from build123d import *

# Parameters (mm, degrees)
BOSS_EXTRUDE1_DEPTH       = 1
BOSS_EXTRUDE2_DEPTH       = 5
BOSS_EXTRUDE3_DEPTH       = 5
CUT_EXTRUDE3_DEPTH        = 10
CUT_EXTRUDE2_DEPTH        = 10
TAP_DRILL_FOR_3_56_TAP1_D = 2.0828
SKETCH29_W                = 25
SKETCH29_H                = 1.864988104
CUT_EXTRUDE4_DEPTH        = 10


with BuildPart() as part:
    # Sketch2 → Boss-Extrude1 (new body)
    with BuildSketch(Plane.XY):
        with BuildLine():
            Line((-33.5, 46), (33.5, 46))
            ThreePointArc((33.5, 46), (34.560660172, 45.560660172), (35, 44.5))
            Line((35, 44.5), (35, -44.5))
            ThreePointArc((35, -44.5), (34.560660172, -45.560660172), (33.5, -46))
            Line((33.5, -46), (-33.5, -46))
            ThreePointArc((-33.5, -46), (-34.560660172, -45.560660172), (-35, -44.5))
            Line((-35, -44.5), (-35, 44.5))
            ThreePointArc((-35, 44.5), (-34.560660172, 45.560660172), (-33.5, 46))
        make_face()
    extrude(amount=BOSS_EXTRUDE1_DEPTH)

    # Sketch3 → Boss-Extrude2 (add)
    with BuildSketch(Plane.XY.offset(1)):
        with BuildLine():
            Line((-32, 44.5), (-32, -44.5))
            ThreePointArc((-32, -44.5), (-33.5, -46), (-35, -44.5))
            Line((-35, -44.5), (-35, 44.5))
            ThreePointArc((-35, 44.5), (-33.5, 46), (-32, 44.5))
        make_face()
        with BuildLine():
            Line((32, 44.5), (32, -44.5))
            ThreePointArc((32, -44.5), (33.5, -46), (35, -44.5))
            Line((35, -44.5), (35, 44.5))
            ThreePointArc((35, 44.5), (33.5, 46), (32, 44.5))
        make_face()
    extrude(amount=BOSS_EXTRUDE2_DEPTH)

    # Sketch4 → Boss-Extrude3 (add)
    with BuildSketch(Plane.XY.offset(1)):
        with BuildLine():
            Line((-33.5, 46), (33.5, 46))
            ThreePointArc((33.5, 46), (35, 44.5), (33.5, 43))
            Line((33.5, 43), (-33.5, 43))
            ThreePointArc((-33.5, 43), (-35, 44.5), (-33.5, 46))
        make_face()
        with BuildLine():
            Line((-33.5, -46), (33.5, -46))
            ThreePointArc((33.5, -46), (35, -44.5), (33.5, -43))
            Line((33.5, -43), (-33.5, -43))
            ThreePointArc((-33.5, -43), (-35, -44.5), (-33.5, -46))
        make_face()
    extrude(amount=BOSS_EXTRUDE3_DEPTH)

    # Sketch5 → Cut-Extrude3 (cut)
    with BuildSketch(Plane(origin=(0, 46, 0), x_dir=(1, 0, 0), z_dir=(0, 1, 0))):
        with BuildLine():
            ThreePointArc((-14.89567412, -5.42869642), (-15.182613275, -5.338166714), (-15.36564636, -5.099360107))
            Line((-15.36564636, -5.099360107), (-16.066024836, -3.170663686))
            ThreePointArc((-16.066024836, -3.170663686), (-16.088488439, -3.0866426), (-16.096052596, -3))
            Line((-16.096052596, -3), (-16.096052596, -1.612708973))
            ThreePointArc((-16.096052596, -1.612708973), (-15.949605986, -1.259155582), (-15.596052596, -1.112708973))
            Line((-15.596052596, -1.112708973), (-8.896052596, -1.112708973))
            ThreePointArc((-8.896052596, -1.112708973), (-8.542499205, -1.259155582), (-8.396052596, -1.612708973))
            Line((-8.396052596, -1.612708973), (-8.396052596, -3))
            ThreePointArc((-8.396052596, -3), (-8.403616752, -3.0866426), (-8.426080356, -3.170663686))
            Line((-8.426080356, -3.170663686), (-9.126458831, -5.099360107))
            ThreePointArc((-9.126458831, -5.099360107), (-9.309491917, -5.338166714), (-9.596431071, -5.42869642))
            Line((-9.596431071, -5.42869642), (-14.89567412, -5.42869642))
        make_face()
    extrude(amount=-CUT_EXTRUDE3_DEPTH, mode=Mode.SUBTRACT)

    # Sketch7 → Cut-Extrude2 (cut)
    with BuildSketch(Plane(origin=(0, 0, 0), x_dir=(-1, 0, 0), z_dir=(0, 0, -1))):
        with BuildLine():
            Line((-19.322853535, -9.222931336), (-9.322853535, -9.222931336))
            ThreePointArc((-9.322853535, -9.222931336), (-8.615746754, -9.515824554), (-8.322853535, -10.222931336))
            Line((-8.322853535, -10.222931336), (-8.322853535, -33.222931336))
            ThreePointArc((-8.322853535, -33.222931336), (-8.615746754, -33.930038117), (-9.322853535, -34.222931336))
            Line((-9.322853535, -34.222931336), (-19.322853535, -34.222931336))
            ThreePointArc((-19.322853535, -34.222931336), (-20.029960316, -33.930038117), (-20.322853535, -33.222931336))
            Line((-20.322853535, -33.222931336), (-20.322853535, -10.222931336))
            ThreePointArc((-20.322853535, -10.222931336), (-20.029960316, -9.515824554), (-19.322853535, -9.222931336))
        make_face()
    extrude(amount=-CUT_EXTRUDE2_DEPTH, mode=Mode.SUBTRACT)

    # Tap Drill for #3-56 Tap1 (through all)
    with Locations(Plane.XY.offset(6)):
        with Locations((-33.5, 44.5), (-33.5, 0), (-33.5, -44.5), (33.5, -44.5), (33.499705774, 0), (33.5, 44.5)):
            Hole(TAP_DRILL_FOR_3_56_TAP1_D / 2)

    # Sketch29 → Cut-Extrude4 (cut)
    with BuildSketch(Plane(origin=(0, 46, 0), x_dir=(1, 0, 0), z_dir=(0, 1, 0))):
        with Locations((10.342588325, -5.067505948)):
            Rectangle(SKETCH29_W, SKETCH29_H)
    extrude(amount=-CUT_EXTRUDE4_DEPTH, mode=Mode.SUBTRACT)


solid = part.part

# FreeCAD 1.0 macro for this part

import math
import FreeCAD as App
import Part
import Sketcher
Q = App.Units.Quantity


def add_polygon(sketch, points):
    """Adds a closed chain of lines whose ends are joined by coincident constraints."""
    first, n = sketch.GeometryCount, len(points)
    for a, b in zip(points, points[1:] + points[:1]):
        sketch.addGeometry(Part.LineSegment(App.Vector(*a, 0), App.Vector(*b, 0)), False)
    for i in range(n):
        sketch.addConstraint(Sketcher.Constraint("Coincident", first + i, 2, first + (i + 1) % n, 1))

doc = App.newDocument("Part")
params = doc.addObject("Spreadsheet::Sheet", "Params")
for row, (alias, value) in enumerate([
    ("sketch1_radius", "1.5 mm"),
    ("sketch1_width", "67 mm"),
    ("sketch1_height", "89 mm"),
    ("pad1_length", "1 mm"),
    ("sketch2_radius", "1.5 mm"),
    ("sketch2_height", "89 mm"),
    ("pad2_length", "5 mm"),
    ("sketch3_radius", "1.5 mm"),
    ("sketch3_width", "67 mm"),
    ("pad3_length", "5 mm"),
    ("sketch4_radius", "0.5 mm"),
    ("sketch4_width", "6.7 mm"),
    ("pocket1_length", "10 mm"),
    ("sketch5_radius", "1 mm"),
    ("sketch5_width", "10 mm"),
    ("sketch5_height", "23 mm"),
    ("pocket2_length", "10 mm"),
    ("hole_diameter", "2.0828 mm"),
    ("sketch7_width", "25 mm"),
    ("pocket3_length", "10 mm"),
], start=1):
    params.set(f"A{row}", alias)
    params.set(f"B{row}", "=" + value)
    params.setAlias(f"B{row}", alias)

body = doc.addObject("PartDesign::Body", "Body")

# Sketch on XY plane
sketch1 = doc.addObject("Sketcher::SketchObject", "Sketch")
body.addObject(sketch1)
sketch1.AttachmentSupport = (doc.XY_Plane, [""])
sketch1.MapMode = "FlatFace"
sketch1.addGeometry([
    Part.LineSegment(App.Vector(33.5, 46, 0), App.Vector(-33.5, 46, 0)),  # 0
    Part.ArcOfCircle(Part.Circle(App.Vector(-33.5, 44.5, 0), App.Vector(0, 0, 1), 1.5), math.radians(90), math.radians(180)),  # 1
    Part.LineSegment(App.Vector(-35, 44.5, 0), App.Vector(-35, -44.5, 0)),  # 2
    Part.ArcOfCircle(Part.Circle(App.Vector(-33.5, -44.5, 0), App.Vector(0, 0, 1), 1.5), math.radians(180), math.radians(270)),  # 3
    Part.LineSegment(App.Vector(-33.5, -46, 0), App.Vector(33.5, -46, 0)),  # 4
    Part.ArcOfCircle(Part.Circle(App.Vector(33.5, -44.5, 0), App.Vector(0, 0, 1), 1.5), math.radians(-90), math.radians(0)),  # 5
    Part.LineSegment(App.Vector(35, -44.5, 0), App.Vector(35, 44.5, 0)),  # 6
    Part.ArcOfCircle(Part.Circle(App.Vector(33.5, 44.5, 0), App.Vector(0, 0, 1), 1.5), math.radians(0), math.radians(90)),  # 7
], False)
sketch1.addConstraint([
    Sketcher.Constraint("Tangent", 0, 2, 1, 1),
    Sketcher.Constraint("Tangent", 1, 2, 2, 1),
    Sketcher.Constraint("Tangent", 2, 2, 3, 1),
    Sketcher.Constraint("Tangent", 3, 2, 4, 1),
    Sketcher.Constraint("Tangent", 4, 2, 5, 1),
    Sketcher.Constraint("Tangent", 5, 2, 6, 1),
    Sketcher.Constraint("Tangent", 6, 2, 7, 1),
    Sketcher.Constraint("Tangent", 7, 2, 0, 1),
    Sketcher.Constraint("Horizontal", 0),
    Sketcher.Constraint("Vertical", 2),
    Sketcher.Constraint("Horizontal", 4),
    Sketcher.Constraint("Vertical", 6),
    Sketcher.Constraint("Equal", 1, 3),
    Sketcher.Constraint("Equal", 3, 5),
    Sketcher.Constraint("Equal", 5, 7),
    Sketcher.Constraint("Symmetric", 1, 3, 5, 3, -1, 1),
    Sketcher.Constraint("Radius", 1, Q("1.5 mm")),
    Sketcher.Constraint("DistanceX", 0, 2, 0, 1, Q("67 mm")),
    Sketcher.Constraint("DistanceY", 2, 2, 2, 1, Q("89 mm")),
])
sketch1.setExpression("Constraints[16]", "Params.sketch1_radius")
sketch1.setExpression("Constraints[17]", "Params.sketch1_width")
sketch1.setExpression("Constraints[18]", "Params.sketch1_height")
pad1 = doc.addObject("PartDesign::Pad", "Pad")
body.addObject(pad1)
pad1.Profile = sketch1
pad1.setExpression("Length", "Params.pad1_length")

# Sketch on XY plane
sketch2 = doc.addObject("Sketcher::SketchObject", "Sketch001")
body.addObject(sketch2)
sketch2.AttachmentSupport = (doc.XY_Plane, [""])
sketch2.MapMode = "FlatFace"
sketch2.AttachmentOffset = App.Placement(App.Vector(0, 0, 1), App.Rotation())
sketch2.addGeometry([
    Part.LineSegment(App.Vector(-32, -44.5, 0), App.Vector(-32, 44.5, 0)),  # 0
    Part.ArcOfCircle(Part.Circle(App.Vector(-33.5, 44.5, 0), App.Vector(0, 0, 1), 1.5), math.radians(0), math.radians(180)),  # 1
    Part.LineSegment(App.Vector(-35, 44.5, 0), App.Vector(-35, -44.5, 0)),  # 2
    Part.ArcOfCircle(Part.Circle(App.Vector(-33.5, -44.5, 0), App.Vector(0, 0, 1), 1.5), math.radians(180), math.radians(360)),  # 3
    Part.LineSegment(App.Vector(32, 44.5, 0), App.Vector(32, -44.5, 0)),  # 4
    Part.ArcOfCircle(Part.Circle(App.Vector(33.5, -44.5, 0), App.Vector(0, 0, 1), 1.5), math.radians(180), math.radians(360)),  # 5
    Part.LineSegment(App.Vector(35, -44.5, 0), App.Vector(35, 44.5, 0)),  # 6
    Part.ArcOfCircle(Part.Circle(App.Vector(33.5, 44.5, 0), App.Vector(0, 0, 1), 1.5), math.radians(0), math.radians(180)),  # 7
], False)
sketch2.addConstraint([
    Sketcher.Constraint("Tangent", 0, 2, 1, 1),
    Sketcher.Constraint("Tangent", 1, 2, 2, 1),
    Sketcher.Constraint("Tangent", 2, 2, 3, 1),
    Sketcher.Constraint("Tangent", 3, 2, 0, 1),
    Sketcher.Constraint("Tangent", 4, 2, 5, 1),
    Sketcher.Constraint("Tangent", 5, 2, 6, 1),
    Sketcher.Constraint("Tangent", 6, 2, 7, 1),
    Sketcher.Constraint("Tangent", 7, 2, 4, 1),
    Sketcher.Constraint("Vertical", 0),
    Sketcher.Constraint("Vertical", 2),
    Sketcher.Constraint("Vertical", 4),
    Sketcher.Constraint("Vertical", 6),
    Sketcher.Constraint("Equal", 3, 5),
    Sketcher.Constraint("Symmetric", 1, 3, 5, 3, -1, 1),
    Sketcher.Constraint("Horizontal", 3, 3, 5, 3),
    Sketcher.Constraint("Horizontal", 1, 3, 7, 3),
    Sketcher.Constraint("Radius", 1, Q("1.5 mm")),
    Sketcher.Constraint("DistanceY", 0, 1, 0, 2, Q("89 mm")),
    Sketcher.Constraint("DistanceX", 0, 2, -1, 1, Q("32 mm")),
])
sketch2.setExpression("Constraints[16]", "Params.sketch2_radius")
sketch2.setExpression("Constraints[17]", "Params.sketch2_height")
pad2 = doc.addObject("PartDesign::Pad", "Pad001")
body.addObject(pad2)
pad2.Profile = sketch2
pad2.setExpression("Length", "Params.pad2_length")

# Sketch on XY plane
sketch3 = doc.addObject("Sketcher::SketchObject", "Sketch002")
body.addObject(sketch3)
sketch3.AttachmentSupport = (doc.XY_Plane, [""])
sketch3.MapMode = "FlatFace"
sketch3.AttachmentOffset = App.Placement(App.Vector(0, 0, 1), App.Rotation())
sketch3.addGeometry([
    Part.LineSegment(App.Vector(33.5, 46, 0), App.Vector(-33.5, 46, 0)),  # 0
    Part.ArcOfCircle(Part.Circle(App.Vector(-33.5, 44.5, 0), App.Vector(0, 0, 1), 1.5), math.radians(90), math.radians(270)),  # 1
    Part.LineSegment(App.Vector(-33.5, 43, 0), App.Vector(33.5, 43, 0)),  # 2
    Part.ArcOfCircle(Part.Circle(App.Vector(33.5, 44.5, 0), App.Vector(0, 0, 1), 1.5), math.radians(-90), math.radians(90)),  # 3
    Part.LineSegment(App.Vector(-33.5, -46, 0), App.Vector(33.5, -46, 0)),  # 4
    Part.ArcOfCircle(Part.Circle(App.Vector(33.5, -44.5, 0), App.Vector(0, 0, 1), 1.5), math.radians(-90), math.radians(90)),  # 5
    Part.LineSegment(App.Vector(33.5, -43, 0), App.Vector(-33.5, -43, 0)),  # 6
    Part.ArcOfCircle(Part.Circle(App.Vector(-33.5, -44.5, 0), App.Vector(0, 0, 1), 1.5), math.radians(90), math.radians(270)),  # 7
], False)
sketch3.addConstraint([
    Sketcher.Constraint("Tangent", 0, 2, 1, 1),
    Sketcher.Constraint("Tangent", 1, 2, 2, 1),
    Sketcher.Constraint("Tangent", 2, 2, 3, 1),
    Sketcher.Constraint("Tangent", 3, 2, 0, 1),
    Sketcher.Constraint("Tangent", 4, 2, 5, 1),
    Sketcher.Constraint("Tangent", 5, 2, 6, 1),
    Sketcher.Constraint("Tangent", 6, 2, 7, 1),
    Sketcher.Constraint("Tangent", 7, 2, 4, 1),
    Sketcher.Constraint("Horizontal", 0),
    Sketcher.Constraint("Horizontal", 2),
    Sketcher.Constraint("Horizontal", 4),
    Sketcher.Constraint("Horizontal", 6),
    Sketcher.Constraint("Equal", 3, 5),
    Sketcher.Constraint("Symmetric", 1, 3, 5, 3, -1, 1),
    Sketcher.Constraint("Vertical", 3, 3, 5, 3),
    Sketcher.Constraint("Vertical", 1, 3, 7, 3),
    Sketcher.Constraint("Radius", 1, Q("1.5 mm")),
    Sketcher.Constraint("DistanceX", 0, 2, 0, 1, Q("67 mm")),
    Sketcher.Constraint("DistanceY", -1, 1, 0, 2, Q("46 mm")),
])
sketch3.setExpression("Constraints[16]", "Params.sketch3_radius")
sketch3.setExpression("Constraints[17]", "Params.sketch3_width")
pad3 = doc.addObject("PartDesign::Pad", "Pad002")
body.addObject(pad3)
pad3.Profile = sketch3
pad3.setExpression("Length", "Params.pad3_length")

# Sketch on XZ plane
sketch4 = doc.addObject("Sketcher::SketchObject", "Sketch003")
body.addObject(sketch4)
sketch4.AttachmentSupport = (doc.XZ_Plane, [""])
sketch4.MapMode = "FlatFace"
sketch4.AttachmentOffset = App.Placement(App.Vector(0, 0, -46), App.Rotation())
sketch4.addGeometry([
    Part.ArcOfCircle(Part.Circle(App.Vector(-14.9, 4.93, 0), App.Vector(0, 0, 1), 0.5), math.radians(90), math.radians(160)),  # 0
    Part.LineSegment(App.Vector(-14.9, 5.43, 0), App.Vector(-9.6, 5.43, 0)),  # 1
    Part.ArcOfCircle(Part.Circle(App.Vector(-9.6, 4.93, 0), App.Vector(0, 0, 1), 0.5), math.radians(20), math.radians(90)),  # 2
    Part.LineSegment(App.Vector(-9.13, 5.1, 0), App.Vector(-8.43, 3.17, 0)),  # 3
    Part.ArcOfCircle(Part.Circle(App.Vector(-8.9, 3, 0), App.Vector(0, 0, 1), 0.5), math.radians(0), math.radians(19.96)),  # 4
    Part.LineSegment(App.Vector(-8.4, 3, 0), App.Vector(-8.4, 1.61, 0)),  # 5
    Part.ArcOfCircle(Part.Circle(App.Vector(-8.9, 1.61, 0), App.Vector(0, 0, 1), 0.5), math.radians(-90), math.radians(0)),  # 6
    Part.LineSegment(App.Vector(-8.9, 1.11, 0), App.Vector(-15.6, 1.11, 0)),  # 7
    Part.ArcOfCircle(Part.Circle(App.Vector(-15.6, 1.61, 0), App.Vector(0, 0, 1), 0.5), math.radians(180), math.radians(270)),  # 8
    Part.LineSegment(App.Vector(-16.1, 1.61, 0), App.Vector(-16.1, 3, 0)),  # 9
    Part.ArcOfCircle(Part.Circle(App.Vector(-15.6, 3, 0), App.Vector(0, 0, 1), 0.5), math.radians(160.04), math.radians(180)),  # 10
    Part.LineSegment(App.Vector(-16.07, 3.17, 0), App.Vector(-15.37, 5.1, 0)),  # 11
], False)
sketch4.addConstraint([
    Sketcher.Constraint("Tangent", 0, 1, 1, 1),
    Sketcher.Constraint("Tangent", 1, 2, 2, 2),
    Sketcher.Constraint("Tangent", 2, 1, 3, 1),
    Sketcher.Constraint("Tangent", 3, 2, 4, 2),
    Sketcher.Constraint("Tangent", 4, 1, 5, 1),
    Sketcher.Constraint("Tangent", 5, 2, 6, 2),
    Sketcher.Constraint("Tangent", 6, 1, 7, 1),
    Sketcher.Constraint("Tangent", 7, 2, 8, 2),
    Sketcher.Constraint("Tangent", 8, 1, 9, 1),
    Sketcher.Constraint("Tangent", 9, 2, 10, 2),
    Sketcher.Constraint("Tangent", 10, 1, 11, 1),
    Sketcher.Constraint("Tangent", 11, 2, 0, 2),
    Sketcher.Constraint("Horizontal", 1),
    Sketcher.Constraint("Vertical", 5),
    Sketcher.Constraint("Horizontal", 7),
    Sketcher.Constraint("Vertical", 9),
    Sketcher.Constraint("Equal", 0, 2),
    Sketcher.Constraint("Equal", 2, 4),
    Sketcher.Constraint("Equal", 4, 6),
    Sketcher.Constraint("Equal", 6, 8),
    Sketcher.Constraint("Equal", 8, 10),
    Sketcher.Constraint("Horizontal", 4, 3, 10, 3),
    Sketcher.Constraint("Horizontal", 3, 2, 10, 1),
    Sketcher.Constraint("Radius", 0, Q("0.5 mm")),
    Sketcher.Constraint("DistanceX", 7, 2, 7, 1, Q("6.7 mm")),
    Sketcher.Constraint("DistanceY", -1, 1, 4, 3, Q("3 mm")),
    Sketcher.Constraint("DistanceY", 5, 2, 5, 1, Q("1.387291 mm")),
    Sketcher.Constraint("DistanceX", 1, 1, 1, 2, Q("5.299243 mm")),
    Sketcher.Constraint("DistanceX", 2, 3, -1, 1, Q("9.596431 mm")),
    Sketcher.Constraint("DistanceX", 2, 1, -1, 1, Q("9.126459 mm")),
])
sketch4.setExpression("Constraints[23]", "Params.sketch4_radius")
sketch4.setExpression("Constraints[24]", "Params.sketch4_width")
pocket1 = doc.addObject("PartDesign::Pocket", "Pocket")
body.addObject(pocket1)
pocket1.Profile = sketch4
pocket1.setExpression("Length", "Params.pocket1_length")
pocket1.Reversed = True

# Sketch on XY plane
sketch5 = doc.addObject("Sketcher::SketchObject", "Sketch004")
body.addObject(sketch5)
sketch5.AttachmentSupport = (doc.XY_Plane, [""])
sketch5.MapMode = "FlatFace"
sketch5.addGeometry([
    Part.LineSegment(App.Vector(9.3, -9.2, 0), App.Vector(19.3, -9.2, 0)),  # 0
    Part.ArcOfCircle(Part.Circle(App.Vector(19.3, -10.2, 0), App.Vector(0, 0, 1), 1), math.radians(0), math.radians(90)),  # 1
    Part.LineSegment(App.Vector(20.3, -10.2, 0), App.Vector(20.3, -33.2, 0)),  # 2
    Part.ArcOfCircle(Part.Circle(App.Vector(19.3, -33.2, 0), App.Vector(0, 0, 1), 1), math.radians(-90), math.radians(0)),  # 3
    Part.LineSegment(App.Vector(19.3, -34.2, 0), App.Vector(9.3, -34.2, 0)),  # 4
    Part.ArcOfCircle(Part.Circle(App.Vector(9.3, -33.2, 0), App.Vector(0, 0, 1), 1), math.radians(-180), math.radians(-90)),  # 5
    Part.LineSegment(App.Vector(8.3, -33.2, 0), App.Vector(8.3, -10.2, 0)),  # 6
    Part.ArcOfCircle(Part.Circle(App.Vector(9.3, -10.2, 0), App.Vector(0, 0, 1), 1), math.radians(90), math.radians(180)),  # 7
], False)
sketch5.addConstraint([
    Sketcher.Constraint("Tangent", 0, 2, 1, 2),
    Sketcher.Constraint("Tangent", 1, 1, 2, 1),
    Sketcher.Constraint("Tangent", 2, 2, 3, 2),
    Sketcher.Constraint("Tangent", 3, 1, 4, 1),
    Sketcher.Constraint("Tangent", 4, 2, 5, 2),
    Sketcher.Constraint("Tangent", 5, 1, 6, 1),
    Sketcher.Constraint("Tangent", 6, 2, 7, 2),
    Sketcher.Constraint("Tangent", 7, 1, 0, 1),
    Sketcher.Constraint("Horizontal", 0),
    Sketcher.Constraint("Vertical", 2),
    Sketcher.Constraint("Horizontal", 4),
    Sketcher.Constraint("Vertical", 6),
    Sketcher.Constraint("Equal", 1, 3),
    Sketcher.Constraint("Equal", 3, 5),
    Sketcher.Constraint("Equal", 5, 7),
    Sketcher.Constraint("Radius", 1, Q("1 mm")),
    Sketcher.Constraint("DistanceX", 0, 1, 0, 2, Q("10 mm")),
    Sketcher.Constraint("DistanceY", 2, 2, 2, 1, Q("23 mm")),
    Sketcher.Constraint("DistanceY", 1, 3, -1, 1, Q("10.222931 mm")),
    Sketcher.Constraint("DistanceX", -1, 1, 1, 3, Q("19.322854 mm")),
])
sketch5.setExpression("Constraints[15]", "Params.sketch5_radius")
sketch5.setExpression("Constraints[16]", "Params.sketch5_width")
sketch5.setExpression("Constraints[17]", "Params.sketch5_height")
pocket2 = doc.addObject("PartDesign::Pocket", "Pocket001")
body.addObject(pocket2)
pocket2.Profile = sketch5
pocket2.setExpression("Length", "Params.pocket2_length")
pocket2.Reversed = True

# Sketch on XY plane
sketch6 = doc.addObject("Sketcher::SketchObject", "Sketch005")
body.addObject(sketch6)
sketch6.AttachmentSupport = (doc.XY_Plane, [""])
sketch6.MapMode = "FlatFace"
sketch6.AttachmentOffset = App.Placement(App.Vector(0, 0, 6), App.Rotation())
sketch6.addGeometry([
    Part.Circle(App.Vector(-33.5, 44.5, 0), App.Vector(0, 0, 1), 1),  # 0
    Part.Circle(App.Vector(-33.5, 0, 0), App.Vector(0, 0, 1), 1),  # 1
    Part.Circle(App.Vector(-33.5, -44.5, 0), App.Vector(0, 0, 1), 1),  # 2
    Part.Circle(App.Vector(33.5, -44.5, 0), App.Vector(0, 0, 1), 1),  # 3
    Part.Circle(App.Vector(33.5, 0, 0), App.Vector(0, 0, 1), 1),  # 4
    Part.Circle(App.Vector(33.5, 44.5, 0), App.Vector(0, 0, 1), 1),  # 5
], False)
sketch6.addConstraint([
    Sketcher.Constraint("Equal", 0, 1),
    Sketcher.Constraint("Equal", 1, 2),
    Sketcher.Constraint("Equal", 2, 3),
    Sketcher.Constraint("Equal", 3, 4),
    Sketcher.Constraint("Equal", 4, 5),
    Sketcher.Constraint("Symmetric", 0, 3, 3, 3, -1, 1),
    Sketcher.Constraint("Symmetric", 2, 3, 5, 3, -1, 1),
    Sketcher.Constraint("Symmetric", 2, 3, 3, 3, -2),
    Sketcher.Constraint("PointOnObject", 1, 3, -1),
    Sketcher.Constraint("PointOnObject", 4, 3, -1),
    Sketcher.Constraint("Vertical", 0, 3, 1, 3),
    Sketcher.Constraint("DistanceY", 2, 3, 0, 3, Q("89 mm")),
    Sketcher.Constraint("DistanceX", 2, 3, 3, 3, Q("67 mm")),
    Sketcher.Constraint("Diameter", 0, Q("2.0828 mm")),
    Sketcher.Constraint("DistanceX", -1, 1, 4, 3, Q("33.499706 mm")),
])
doc.recompute()
hole = doc.addObject("PartDesign::Hole", "Hole")
body.addObject(hole)
hole.Profile = sketch6
hole.ThreadType = "None"
hole.setExpression("Diameter", "Params.hole_diameter")
hole.DepthType = "ThroughAll"

# Sketch on XZ plane
sketch7 = doc.addObject("Sketcher::SketchObject", "Sketch006")
body.addObject(sketch7)
sketch7.AttachmentSupport = (doc.XZ_Plane, [""])
sketch7.MapMode = "FlatFace"
sketch7.AttachmentOffset = App.Placement(App.Vector(0, 0, -46), App.Rotation())
add_polygon(sketch7, [(-2.2, 4.1), (-2.2, 6), (22.8, 6), (22.8, 4.1)])  # lines 0-3
sketch7.addConstraint([
    Sketcher.Constraint("Vertical", 0),
    Sketcher.Constraint("Horizontal", 1),
    Sketcher.Constraint("Vertical", 2),
    Sketcher.Constraint("Horizontal", 3),
    Sketcher.Constraint("DistanceX", 1, 1, 1, 2, Q("25 mm")),
    Sketcher.Constraint("DistanceY", -1, 1, 0, 2, Q("6 mm")),
    Sketcher.Constraint("DistanceY", 0, 1, 0, 2, Q("1.864988 mm")),
    Sketcher.Constraint("DistanceX", 0, 2, -1, 1, Q("2.157412 mm")),
])
sketch7.setExpression("Constraints[8]", "Params.sketch7_width")
pocket3 = doc.addObject("PartDesign::Pocket", "Pocket002")
body.addObject(pocket3)
pocket3.Profile = sketch7
pocket3.setExpression("Length", "Params.pocket3_length")
pocket3.Reversed = True

doc.recompute()
